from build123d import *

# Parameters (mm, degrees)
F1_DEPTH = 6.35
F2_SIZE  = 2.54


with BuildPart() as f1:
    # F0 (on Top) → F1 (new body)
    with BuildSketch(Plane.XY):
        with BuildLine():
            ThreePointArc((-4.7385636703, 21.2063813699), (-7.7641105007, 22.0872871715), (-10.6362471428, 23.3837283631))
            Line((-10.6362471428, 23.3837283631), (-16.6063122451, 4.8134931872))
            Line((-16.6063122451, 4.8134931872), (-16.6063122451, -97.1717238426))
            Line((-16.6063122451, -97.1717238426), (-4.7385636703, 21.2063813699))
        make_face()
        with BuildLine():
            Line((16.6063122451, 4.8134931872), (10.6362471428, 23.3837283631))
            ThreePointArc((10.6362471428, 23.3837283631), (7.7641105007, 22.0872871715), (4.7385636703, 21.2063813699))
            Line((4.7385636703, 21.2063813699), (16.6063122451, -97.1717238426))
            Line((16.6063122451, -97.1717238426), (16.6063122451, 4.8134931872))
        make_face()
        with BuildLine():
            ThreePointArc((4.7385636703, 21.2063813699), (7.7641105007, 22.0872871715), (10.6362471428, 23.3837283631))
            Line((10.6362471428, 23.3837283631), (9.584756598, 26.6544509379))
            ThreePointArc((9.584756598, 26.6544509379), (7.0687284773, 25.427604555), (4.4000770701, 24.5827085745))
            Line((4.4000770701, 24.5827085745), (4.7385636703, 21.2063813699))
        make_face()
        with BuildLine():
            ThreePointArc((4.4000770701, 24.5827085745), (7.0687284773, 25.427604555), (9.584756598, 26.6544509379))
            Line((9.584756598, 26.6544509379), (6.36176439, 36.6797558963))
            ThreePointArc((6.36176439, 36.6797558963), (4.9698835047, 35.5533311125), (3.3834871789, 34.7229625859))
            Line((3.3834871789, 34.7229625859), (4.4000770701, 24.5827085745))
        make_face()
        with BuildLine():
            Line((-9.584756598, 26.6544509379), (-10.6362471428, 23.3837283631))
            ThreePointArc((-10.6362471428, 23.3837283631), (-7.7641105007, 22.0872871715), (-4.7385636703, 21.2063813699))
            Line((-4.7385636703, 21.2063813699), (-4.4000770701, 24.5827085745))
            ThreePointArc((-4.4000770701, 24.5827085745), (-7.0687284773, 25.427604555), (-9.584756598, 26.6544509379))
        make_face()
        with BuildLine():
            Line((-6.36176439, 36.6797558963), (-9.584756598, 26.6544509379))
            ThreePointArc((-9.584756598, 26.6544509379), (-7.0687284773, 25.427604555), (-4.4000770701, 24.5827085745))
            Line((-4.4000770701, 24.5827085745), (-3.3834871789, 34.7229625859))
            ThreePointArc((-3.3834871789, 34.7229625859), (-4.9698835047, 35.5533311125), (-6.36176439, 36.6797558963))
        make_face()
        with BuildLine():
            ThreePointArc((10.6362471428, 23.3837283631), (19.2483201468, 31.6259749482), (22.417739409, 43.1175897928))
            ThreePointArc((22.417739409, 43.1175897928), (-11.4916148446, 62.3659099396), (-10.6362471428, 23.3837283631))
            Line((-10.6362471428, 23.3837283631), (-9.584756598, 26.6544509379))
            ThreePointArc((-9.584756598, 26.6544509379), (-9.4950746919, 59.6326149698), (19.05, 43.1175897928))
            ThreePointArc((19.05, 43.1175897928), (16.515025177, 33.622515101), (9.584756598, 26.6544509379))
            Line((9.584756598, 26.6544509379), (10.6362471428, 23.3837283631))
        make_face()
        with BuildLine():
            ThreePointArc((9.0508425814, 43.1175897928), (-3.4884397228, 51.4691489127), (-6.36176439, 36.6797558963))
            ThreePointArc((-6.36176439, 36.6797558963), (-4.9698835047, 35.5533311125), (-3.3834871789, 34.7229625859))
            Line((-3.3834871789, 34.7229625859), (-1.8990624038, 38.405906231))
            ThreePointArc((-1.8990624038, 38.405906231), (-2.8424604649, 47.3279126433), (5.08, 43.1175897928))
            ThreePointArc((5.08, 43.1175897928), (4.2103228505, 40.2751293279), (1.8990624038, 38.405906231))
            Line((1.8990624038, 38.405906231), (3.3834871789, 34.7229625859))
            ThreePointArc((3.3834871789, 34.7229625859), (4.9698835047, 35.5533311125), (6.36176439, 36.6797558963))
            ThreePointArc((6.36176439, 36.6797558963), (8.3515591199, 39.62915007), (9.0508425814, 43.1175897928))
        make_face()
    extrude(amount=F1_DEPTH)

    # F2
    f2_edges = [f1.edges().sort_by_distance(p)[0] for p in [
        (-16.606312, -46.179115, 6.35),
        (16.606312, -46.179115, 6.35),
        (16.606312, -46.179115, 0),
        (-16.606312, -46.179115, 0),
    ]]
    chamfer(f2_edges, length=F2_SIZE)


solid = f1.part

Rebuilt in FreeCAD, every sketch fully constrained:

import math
import FreeCAD as App
import Part
import Sketcher
Q = App.Units.Quantity


def edges_at(feature, points):
    """Names of the edges that pass closest to the given points."""
    edges = feature.Shape.Edges
    near = lambda p: min(range(len(edges)), key=lambda i: edges[i].distToShape(Part.Vertex(*p))[0])
    return sorted({f"Edge{near(p) + 1}" for p in points})

doc = App.newDocument("Part")
body = doc.addObject("PartDesign::Body", "Body")

# Sketch on XY plane
sketch1 = body.newObject("Sketcher::SketchObject", "Sketch")
sketch1.AttachmentSupport = (doc.getObject("XY_Plane"), [""])
sketch1.MapMode = "FlatFace"
sketch1.addGeometry(Part.LineSegment(App.Vector(-10.636247, 23.383728, 0), App.Vector(-16.606312, 4.813493, 0)), False)
sketch1.addGeometry(Part.LineSegment(App.Vector(-16.606312, 4.813493, 0), App.Vector(-16.606312, -97.171724, 0)), False)
sketch1.addGeometry(Part.LineSegment(App.Vector(-16.606312, -97.171724, 0), App.Vector(-4.738564, 21.206381, 0)), False)
sketch1.addGeometry(Part.LineSegment(App.Vector(-4.738564, 21.206381, 0), App.Vector(-4.400077, 24.582709, 0)), False)
sketch1.addGeometry(Part.LineSegment(App.Vector(-4.400077, 24.582709, 0), App.Vector(-3.383487, 34.722963, 0)), False)
sketch1.addGeometry(Part.LineSegment(App.Vector(-3.383487, 34.722963, 0), App.Vector(-1.899062, 38.405906, 0)), False)
sketch1.addGeometry(Part.ArcOfCircle(Part.Circle(App.Vector(0, 43.11759, 0), App.Vector(0, 0, 1), 5.08), math.radians(0), math.radians(248.047909)), False)
sketch1.addGeometry(Part.ArcOfCircle(Part.Circle(App.Vector(0, 43.11759, 0), App.Vector(0, 0, 1), 5.08), math.radians(-68.047909), math.radians(0)), False)
sketch1.addGeometry(Part.LineSegment(App.Vector(1.899062, 38.405906, 0), App.Vector(3.383487, 34.722963, 0)), False)
sketch1.addGeometry(Part.LineSegment(App.Vector(3.383487, 34.722963, 0), App.Vector(4.400077, 24.582709, 0)), False)
sketch1.addGeometry(Part.LineSegment(App.Vector(4.400077, 24.582709, 0), App.Vector(4.738564, 21.206381, 0)), False)
sketch1.addGeometry(Part.LineSegment(App.Vector(4.738564, 21.206381, 0), App.Vector(16.606312, -97.171724, 0)), False)
sketch1.addGeometry(Part.LineSegment(App.Vector(16.606312, -97.171724, 0), App.Vector(16.606312, 4.813493, 0)), False)
sketch1.addGeometry(Part.LineSegment(App.Vector(16.606312, 4.813493, 0), App.Vector(10.636247, 23.383728, 0)), False)
sketch1.addGeometry(Part.ArcOfCircle(Part.Circle(App.Vector(0, 43.11759, 0), App.Vector(0, 0, 1), 22.417739), math.radians(-61.676017), math.radians(0)), False)
sketch1.addGeometry(Part.ArcOfCircle(Part.Circle(App.Vector(0, 43.11759, 0), App.Vector(0, 0, 1), 22.417739), math.radians(0), math.radians(241.676017)), False)
sketch1.addGeometry(Part.LineSegment(App.Vector(-6.361764, 36.679756, 0), App.Vector(-9.584757, 26.654451, 0)), False)
sketch1.addGeometry(Part.ArcOfCircle(Part.Circle(App.Vector(0, 43.11759, 0), App.Vector(0, 0, 1), 19.05), math.radians(0), math.radians(239.792251)), False)
sketch1.addGeometry(Part.ArcOfCircle(Part.Circle(App.Vector(0, 43.11759, 0), App.Vector(0, 0, 1), 19.05), math.radians(-59.792251), math.radians(0)), False)
sketch1.addGeometry(Part.LineSegment(App.Vector(9.584757, 26.654451, 0), App.Vector(6.361764, 36.679756, 0)), False)
sketch1.addGeometry(Part.ArcOfCircle(Part.Circle(App.Vector(0, 43.11759, 0), App.Vector(0, 0, 1), 9.050843), math.radians(-45.340511), math.radians(0)), False)
sketch1.addGeometry(Part.ArcOfCircle(Part.Circle(App.Vector(0, 43.11759, 0), App.Vector(0, 0, 1), 9.050843), math.radians(0), math.radians(225.340511)), False)
sketch1.addConstraint(Sketcher.Constraint("Coincident", 0, 2, 1, 1))
sketch1.addConstraint(Sketcher.Constraint("Coincident", 1, 2, 2, 1))
sketch1.addConstraint(Sketcher.Constraint("Coincident", 2, 2, 3, 1))
sketch1.addConstraint(Sketcher.Constraint("Coincident", 3, 2, 4, 1))
sketch1.addConstraint(Sketcher.Constraint("Coincident", 4, 2, 5, 1))
sketch1.addConstraint(Sketcher.Constraint("Coincident", 5, 2, 6, 2))
sketch1.addConstraint(Sketcher.Constraint("Coincident", 6, 1, 7, 2))
sketch1.addConstraint(Sketcher.Constraint("Coincident", 7, 1, 8, 1))
sketch1.addConstraint(Sketcher.Constraint("Coincident", 8, 2, 9, 1))
sketch1.addConstraint(Sketcher.Constraint("Coincident", 9, 2, 10, 1))
sketch1.addConstraint(Sketcher.Constraint("Coincident", 10, 2, 11, 1))
sketch1.addConstraint(Sketcher.Constraint("Coincident", 11, 2, 12, 1))
sketch1.addConstraint(Sketcher.Constraint("Coincident", 12, 2, 13, 1))
sketch1.addConstraint(Sketcher.Constraint("Coincident", 13, 2, 14, 1))
sketch1.addConstraint(Sketcher.Constraint("Coincident", 14, 2, 15, 1))
sketch1.addConstraint(Sketcher.Constraint("Coincident", 15, 2, 0, 1))
sketch1.addConstraint(Sketcher.Constraint("Coincident", 16, 2, 17, 2))
sketch1.addConstraint(Sketcher.Constraint("Coincident", 17, 1, 18, 2))
sketch1.addConstraint(Sketcher.Constraint("Coincident", 18, 1, 19, 1))
sketch1.addConstraint(Sketcher.Constraint("Coincident", 19, 2, 20, 1))
sketch1.addConstraint(Sketcher.Constraint("Coincident", 20, 2, 21, 1))
sketch1.addConstraint(Sketcher.Constraint("Coincident", 21, 2, 16, 1))
sketch1.addConstraint(Sketcher.Constraint("Vertical", 1))
sketch1.addConstraint(Sketcher.Constraint("Vertical", 12))
sketch1.addConstraint(Sketcher.Constraint("Coincident", 7, 3, 6, 3))
sketch1.addConstraint(Sketcher.Constraint("Coincident", 14, 3, 6, 3))
sketch1.addConstraint(Sketcher.Constraint("Coincident", 15, 3, 6, 3))
sketch1.addConstraint(Sketcher.Constraint("Coincident", 17, 3, 6, 3))
sketch1.addConstraint(Sketcher.Constraint("Coincident", 18, 3, 6, 3))
sketch1.addConstraint(Sketcher.Constraint("Coincident", 20, 3, 6, 3))
sketch1.addConstraint(Sketcher.Constraint("Coincident", 21, 3, 6, 3))
sketch1.addConstraint(Sketcher.Constraint("PointOnObject", 6, 3, -2))
sketch1.addConstraint(Sketcher.Constraint("Radius", 6, Q("0.2 in")))
sketch1.addConstraint(Sketcher.Constraint("Radius", 17, Q("0.75 in")))
sketch1.addConstraint(Sketcher.Constraint("Radius", 14, 22.417739))
sketch1.addConstraint(Sketcher.Constraint("Radius", 20, 9.050843))
sketch1.addConstraint(Sketcher.Constraint("DistanceX", 7, 1, 19, 2, 4.462702))
sketch1.addConstraint(Sketcher.Constraint("DistanceX", 21, 2, 5, 2, 4.462702))
sketch1.addConstraint(Sketcher.Constraint("Distance", 0, 19.506289))
sketch1.addConstraint(Sketcher.Constraint("Distance", 3, 3.393252))
sketch1.addConstraint(Sketcher.Constraint("Distance", 10, 3.393252))
sketch1.addConstraint(Sketcher.Constraint("Distance", 13, 19.506289))
sketch1.addConstraint(Sketcher.Constraint("Distance", 16, 10.530642))
sketch1.addConstraint(Sketcher.Constraint("Distance", 19, 10.530642))
sketch1.addConstraint(Sketcher.Constraint("DistanceY", 1, 2, 1, 1, 101.985217))
sketch1.addConstraint(Sketcher.Constraint("DistanceY", 12, 1, 12, 2, 101.985217))
sketch1.addConstraint(Sketcher.Constraint("DistanceY", -1, 1, 6, 3, 43.11759))
sketch1.addConstraint(Sketcher.Constraint("DistanceY", -1, 1, 2, 2, 21.206381))
sketch1.addConstraint(Sketcher.Constraint("DistanceY", -1, 1, 3, 2, 24.582709))
sketch1.addConstraint(Sketcher.Constraint("DistanceY", -1, 1, 6, 1, 43.11759))
sketch1.addConstraint(Sketcher.Constraint("DistanceY", -1, 1, 9, 2, 24.582709))
sketch1.addConstraint(Sketcher.Constraint("DistanceY", -1, 1, 10, 2, 21.206381))
sketch1.addConstraint(Sketcher.Constraint("DistanceY", -1, 1, 13, 2, 23.383728))
sketch1.addConstraint(Sketcher.Constraint("DistanceY", -1, 1, 14, 2, 43.11759))
sketch1.addConstraint(Sketcher.Constraint("DistanceY", -1, 1, 15, 2, 23.383728))
sketch1.addConstraint(Sketcher.Constraint("DistanceY", -1, 1, 16, 2, 26.654451))
sketch1.addConstraint(Sketcher.Constraint("DistanceY", -1, 1, 17, 1, 43.11759))
sketch1.addConstraint(Sketcher.Constraint("DistanceY", -1, 1, 18, 1, 26.654451))
sketch1.addConstraint(Sketcher.Constraint("DistanceY", -1, 1, 20, 2, 43.11759))
sketch1.addConstraint(Sketcher.Constraint("DistanceX", 0, 2, 2, 2, 11.867749))
sketch1.addConstraint(Sketcher.Constraint("DistanceY", 0, 2, 2, 2, 16.392888))
sketch1.addConstraint(Sketcher.Constraint("DistanceX", 5, 2, 8, 2, 5.28255))
sketch1.addConstraint(Sketcher.Constraint("DistanceX", 2, 2, 9, 2, 9.138641))
sketch1.addConstraint(Sketcher.Constraint("DistanceY", 10, 2, 8, 2, 13.516581))
sketch1.addConstraint(Sketcher.Constraint("DistanceX", 4, 2, 10, 2, 8.122051))
sketch1.addConstraint(Sketcher.Constraint("DistanceY", 10, 2, 4, 2, 13.516581))
sketch1.addConstraint(Sketcher.Constraint("DistanceX", 10, 2, 11, 2, 11.867749))
pad1 = body.newObject("PartDesign::Pad", "Pad")
pad1.Profile = sketch1
pad1.Length = Q("0.25 in")
doc.recompute()

chamfer = body.newObject("PartDesign::Chamfer", "Chamfer")
chamfer.Base = (pad1, edges_at(pad1, [
    (-16.606, -46.179, 6.35),
    (16.606, -46.179, 6.35),
    (16.606, -46.179, 0),
    (-16.606, -46.179, 0),
]))
chamfer.Size = Q("0.1 in")

doc.recompute()
